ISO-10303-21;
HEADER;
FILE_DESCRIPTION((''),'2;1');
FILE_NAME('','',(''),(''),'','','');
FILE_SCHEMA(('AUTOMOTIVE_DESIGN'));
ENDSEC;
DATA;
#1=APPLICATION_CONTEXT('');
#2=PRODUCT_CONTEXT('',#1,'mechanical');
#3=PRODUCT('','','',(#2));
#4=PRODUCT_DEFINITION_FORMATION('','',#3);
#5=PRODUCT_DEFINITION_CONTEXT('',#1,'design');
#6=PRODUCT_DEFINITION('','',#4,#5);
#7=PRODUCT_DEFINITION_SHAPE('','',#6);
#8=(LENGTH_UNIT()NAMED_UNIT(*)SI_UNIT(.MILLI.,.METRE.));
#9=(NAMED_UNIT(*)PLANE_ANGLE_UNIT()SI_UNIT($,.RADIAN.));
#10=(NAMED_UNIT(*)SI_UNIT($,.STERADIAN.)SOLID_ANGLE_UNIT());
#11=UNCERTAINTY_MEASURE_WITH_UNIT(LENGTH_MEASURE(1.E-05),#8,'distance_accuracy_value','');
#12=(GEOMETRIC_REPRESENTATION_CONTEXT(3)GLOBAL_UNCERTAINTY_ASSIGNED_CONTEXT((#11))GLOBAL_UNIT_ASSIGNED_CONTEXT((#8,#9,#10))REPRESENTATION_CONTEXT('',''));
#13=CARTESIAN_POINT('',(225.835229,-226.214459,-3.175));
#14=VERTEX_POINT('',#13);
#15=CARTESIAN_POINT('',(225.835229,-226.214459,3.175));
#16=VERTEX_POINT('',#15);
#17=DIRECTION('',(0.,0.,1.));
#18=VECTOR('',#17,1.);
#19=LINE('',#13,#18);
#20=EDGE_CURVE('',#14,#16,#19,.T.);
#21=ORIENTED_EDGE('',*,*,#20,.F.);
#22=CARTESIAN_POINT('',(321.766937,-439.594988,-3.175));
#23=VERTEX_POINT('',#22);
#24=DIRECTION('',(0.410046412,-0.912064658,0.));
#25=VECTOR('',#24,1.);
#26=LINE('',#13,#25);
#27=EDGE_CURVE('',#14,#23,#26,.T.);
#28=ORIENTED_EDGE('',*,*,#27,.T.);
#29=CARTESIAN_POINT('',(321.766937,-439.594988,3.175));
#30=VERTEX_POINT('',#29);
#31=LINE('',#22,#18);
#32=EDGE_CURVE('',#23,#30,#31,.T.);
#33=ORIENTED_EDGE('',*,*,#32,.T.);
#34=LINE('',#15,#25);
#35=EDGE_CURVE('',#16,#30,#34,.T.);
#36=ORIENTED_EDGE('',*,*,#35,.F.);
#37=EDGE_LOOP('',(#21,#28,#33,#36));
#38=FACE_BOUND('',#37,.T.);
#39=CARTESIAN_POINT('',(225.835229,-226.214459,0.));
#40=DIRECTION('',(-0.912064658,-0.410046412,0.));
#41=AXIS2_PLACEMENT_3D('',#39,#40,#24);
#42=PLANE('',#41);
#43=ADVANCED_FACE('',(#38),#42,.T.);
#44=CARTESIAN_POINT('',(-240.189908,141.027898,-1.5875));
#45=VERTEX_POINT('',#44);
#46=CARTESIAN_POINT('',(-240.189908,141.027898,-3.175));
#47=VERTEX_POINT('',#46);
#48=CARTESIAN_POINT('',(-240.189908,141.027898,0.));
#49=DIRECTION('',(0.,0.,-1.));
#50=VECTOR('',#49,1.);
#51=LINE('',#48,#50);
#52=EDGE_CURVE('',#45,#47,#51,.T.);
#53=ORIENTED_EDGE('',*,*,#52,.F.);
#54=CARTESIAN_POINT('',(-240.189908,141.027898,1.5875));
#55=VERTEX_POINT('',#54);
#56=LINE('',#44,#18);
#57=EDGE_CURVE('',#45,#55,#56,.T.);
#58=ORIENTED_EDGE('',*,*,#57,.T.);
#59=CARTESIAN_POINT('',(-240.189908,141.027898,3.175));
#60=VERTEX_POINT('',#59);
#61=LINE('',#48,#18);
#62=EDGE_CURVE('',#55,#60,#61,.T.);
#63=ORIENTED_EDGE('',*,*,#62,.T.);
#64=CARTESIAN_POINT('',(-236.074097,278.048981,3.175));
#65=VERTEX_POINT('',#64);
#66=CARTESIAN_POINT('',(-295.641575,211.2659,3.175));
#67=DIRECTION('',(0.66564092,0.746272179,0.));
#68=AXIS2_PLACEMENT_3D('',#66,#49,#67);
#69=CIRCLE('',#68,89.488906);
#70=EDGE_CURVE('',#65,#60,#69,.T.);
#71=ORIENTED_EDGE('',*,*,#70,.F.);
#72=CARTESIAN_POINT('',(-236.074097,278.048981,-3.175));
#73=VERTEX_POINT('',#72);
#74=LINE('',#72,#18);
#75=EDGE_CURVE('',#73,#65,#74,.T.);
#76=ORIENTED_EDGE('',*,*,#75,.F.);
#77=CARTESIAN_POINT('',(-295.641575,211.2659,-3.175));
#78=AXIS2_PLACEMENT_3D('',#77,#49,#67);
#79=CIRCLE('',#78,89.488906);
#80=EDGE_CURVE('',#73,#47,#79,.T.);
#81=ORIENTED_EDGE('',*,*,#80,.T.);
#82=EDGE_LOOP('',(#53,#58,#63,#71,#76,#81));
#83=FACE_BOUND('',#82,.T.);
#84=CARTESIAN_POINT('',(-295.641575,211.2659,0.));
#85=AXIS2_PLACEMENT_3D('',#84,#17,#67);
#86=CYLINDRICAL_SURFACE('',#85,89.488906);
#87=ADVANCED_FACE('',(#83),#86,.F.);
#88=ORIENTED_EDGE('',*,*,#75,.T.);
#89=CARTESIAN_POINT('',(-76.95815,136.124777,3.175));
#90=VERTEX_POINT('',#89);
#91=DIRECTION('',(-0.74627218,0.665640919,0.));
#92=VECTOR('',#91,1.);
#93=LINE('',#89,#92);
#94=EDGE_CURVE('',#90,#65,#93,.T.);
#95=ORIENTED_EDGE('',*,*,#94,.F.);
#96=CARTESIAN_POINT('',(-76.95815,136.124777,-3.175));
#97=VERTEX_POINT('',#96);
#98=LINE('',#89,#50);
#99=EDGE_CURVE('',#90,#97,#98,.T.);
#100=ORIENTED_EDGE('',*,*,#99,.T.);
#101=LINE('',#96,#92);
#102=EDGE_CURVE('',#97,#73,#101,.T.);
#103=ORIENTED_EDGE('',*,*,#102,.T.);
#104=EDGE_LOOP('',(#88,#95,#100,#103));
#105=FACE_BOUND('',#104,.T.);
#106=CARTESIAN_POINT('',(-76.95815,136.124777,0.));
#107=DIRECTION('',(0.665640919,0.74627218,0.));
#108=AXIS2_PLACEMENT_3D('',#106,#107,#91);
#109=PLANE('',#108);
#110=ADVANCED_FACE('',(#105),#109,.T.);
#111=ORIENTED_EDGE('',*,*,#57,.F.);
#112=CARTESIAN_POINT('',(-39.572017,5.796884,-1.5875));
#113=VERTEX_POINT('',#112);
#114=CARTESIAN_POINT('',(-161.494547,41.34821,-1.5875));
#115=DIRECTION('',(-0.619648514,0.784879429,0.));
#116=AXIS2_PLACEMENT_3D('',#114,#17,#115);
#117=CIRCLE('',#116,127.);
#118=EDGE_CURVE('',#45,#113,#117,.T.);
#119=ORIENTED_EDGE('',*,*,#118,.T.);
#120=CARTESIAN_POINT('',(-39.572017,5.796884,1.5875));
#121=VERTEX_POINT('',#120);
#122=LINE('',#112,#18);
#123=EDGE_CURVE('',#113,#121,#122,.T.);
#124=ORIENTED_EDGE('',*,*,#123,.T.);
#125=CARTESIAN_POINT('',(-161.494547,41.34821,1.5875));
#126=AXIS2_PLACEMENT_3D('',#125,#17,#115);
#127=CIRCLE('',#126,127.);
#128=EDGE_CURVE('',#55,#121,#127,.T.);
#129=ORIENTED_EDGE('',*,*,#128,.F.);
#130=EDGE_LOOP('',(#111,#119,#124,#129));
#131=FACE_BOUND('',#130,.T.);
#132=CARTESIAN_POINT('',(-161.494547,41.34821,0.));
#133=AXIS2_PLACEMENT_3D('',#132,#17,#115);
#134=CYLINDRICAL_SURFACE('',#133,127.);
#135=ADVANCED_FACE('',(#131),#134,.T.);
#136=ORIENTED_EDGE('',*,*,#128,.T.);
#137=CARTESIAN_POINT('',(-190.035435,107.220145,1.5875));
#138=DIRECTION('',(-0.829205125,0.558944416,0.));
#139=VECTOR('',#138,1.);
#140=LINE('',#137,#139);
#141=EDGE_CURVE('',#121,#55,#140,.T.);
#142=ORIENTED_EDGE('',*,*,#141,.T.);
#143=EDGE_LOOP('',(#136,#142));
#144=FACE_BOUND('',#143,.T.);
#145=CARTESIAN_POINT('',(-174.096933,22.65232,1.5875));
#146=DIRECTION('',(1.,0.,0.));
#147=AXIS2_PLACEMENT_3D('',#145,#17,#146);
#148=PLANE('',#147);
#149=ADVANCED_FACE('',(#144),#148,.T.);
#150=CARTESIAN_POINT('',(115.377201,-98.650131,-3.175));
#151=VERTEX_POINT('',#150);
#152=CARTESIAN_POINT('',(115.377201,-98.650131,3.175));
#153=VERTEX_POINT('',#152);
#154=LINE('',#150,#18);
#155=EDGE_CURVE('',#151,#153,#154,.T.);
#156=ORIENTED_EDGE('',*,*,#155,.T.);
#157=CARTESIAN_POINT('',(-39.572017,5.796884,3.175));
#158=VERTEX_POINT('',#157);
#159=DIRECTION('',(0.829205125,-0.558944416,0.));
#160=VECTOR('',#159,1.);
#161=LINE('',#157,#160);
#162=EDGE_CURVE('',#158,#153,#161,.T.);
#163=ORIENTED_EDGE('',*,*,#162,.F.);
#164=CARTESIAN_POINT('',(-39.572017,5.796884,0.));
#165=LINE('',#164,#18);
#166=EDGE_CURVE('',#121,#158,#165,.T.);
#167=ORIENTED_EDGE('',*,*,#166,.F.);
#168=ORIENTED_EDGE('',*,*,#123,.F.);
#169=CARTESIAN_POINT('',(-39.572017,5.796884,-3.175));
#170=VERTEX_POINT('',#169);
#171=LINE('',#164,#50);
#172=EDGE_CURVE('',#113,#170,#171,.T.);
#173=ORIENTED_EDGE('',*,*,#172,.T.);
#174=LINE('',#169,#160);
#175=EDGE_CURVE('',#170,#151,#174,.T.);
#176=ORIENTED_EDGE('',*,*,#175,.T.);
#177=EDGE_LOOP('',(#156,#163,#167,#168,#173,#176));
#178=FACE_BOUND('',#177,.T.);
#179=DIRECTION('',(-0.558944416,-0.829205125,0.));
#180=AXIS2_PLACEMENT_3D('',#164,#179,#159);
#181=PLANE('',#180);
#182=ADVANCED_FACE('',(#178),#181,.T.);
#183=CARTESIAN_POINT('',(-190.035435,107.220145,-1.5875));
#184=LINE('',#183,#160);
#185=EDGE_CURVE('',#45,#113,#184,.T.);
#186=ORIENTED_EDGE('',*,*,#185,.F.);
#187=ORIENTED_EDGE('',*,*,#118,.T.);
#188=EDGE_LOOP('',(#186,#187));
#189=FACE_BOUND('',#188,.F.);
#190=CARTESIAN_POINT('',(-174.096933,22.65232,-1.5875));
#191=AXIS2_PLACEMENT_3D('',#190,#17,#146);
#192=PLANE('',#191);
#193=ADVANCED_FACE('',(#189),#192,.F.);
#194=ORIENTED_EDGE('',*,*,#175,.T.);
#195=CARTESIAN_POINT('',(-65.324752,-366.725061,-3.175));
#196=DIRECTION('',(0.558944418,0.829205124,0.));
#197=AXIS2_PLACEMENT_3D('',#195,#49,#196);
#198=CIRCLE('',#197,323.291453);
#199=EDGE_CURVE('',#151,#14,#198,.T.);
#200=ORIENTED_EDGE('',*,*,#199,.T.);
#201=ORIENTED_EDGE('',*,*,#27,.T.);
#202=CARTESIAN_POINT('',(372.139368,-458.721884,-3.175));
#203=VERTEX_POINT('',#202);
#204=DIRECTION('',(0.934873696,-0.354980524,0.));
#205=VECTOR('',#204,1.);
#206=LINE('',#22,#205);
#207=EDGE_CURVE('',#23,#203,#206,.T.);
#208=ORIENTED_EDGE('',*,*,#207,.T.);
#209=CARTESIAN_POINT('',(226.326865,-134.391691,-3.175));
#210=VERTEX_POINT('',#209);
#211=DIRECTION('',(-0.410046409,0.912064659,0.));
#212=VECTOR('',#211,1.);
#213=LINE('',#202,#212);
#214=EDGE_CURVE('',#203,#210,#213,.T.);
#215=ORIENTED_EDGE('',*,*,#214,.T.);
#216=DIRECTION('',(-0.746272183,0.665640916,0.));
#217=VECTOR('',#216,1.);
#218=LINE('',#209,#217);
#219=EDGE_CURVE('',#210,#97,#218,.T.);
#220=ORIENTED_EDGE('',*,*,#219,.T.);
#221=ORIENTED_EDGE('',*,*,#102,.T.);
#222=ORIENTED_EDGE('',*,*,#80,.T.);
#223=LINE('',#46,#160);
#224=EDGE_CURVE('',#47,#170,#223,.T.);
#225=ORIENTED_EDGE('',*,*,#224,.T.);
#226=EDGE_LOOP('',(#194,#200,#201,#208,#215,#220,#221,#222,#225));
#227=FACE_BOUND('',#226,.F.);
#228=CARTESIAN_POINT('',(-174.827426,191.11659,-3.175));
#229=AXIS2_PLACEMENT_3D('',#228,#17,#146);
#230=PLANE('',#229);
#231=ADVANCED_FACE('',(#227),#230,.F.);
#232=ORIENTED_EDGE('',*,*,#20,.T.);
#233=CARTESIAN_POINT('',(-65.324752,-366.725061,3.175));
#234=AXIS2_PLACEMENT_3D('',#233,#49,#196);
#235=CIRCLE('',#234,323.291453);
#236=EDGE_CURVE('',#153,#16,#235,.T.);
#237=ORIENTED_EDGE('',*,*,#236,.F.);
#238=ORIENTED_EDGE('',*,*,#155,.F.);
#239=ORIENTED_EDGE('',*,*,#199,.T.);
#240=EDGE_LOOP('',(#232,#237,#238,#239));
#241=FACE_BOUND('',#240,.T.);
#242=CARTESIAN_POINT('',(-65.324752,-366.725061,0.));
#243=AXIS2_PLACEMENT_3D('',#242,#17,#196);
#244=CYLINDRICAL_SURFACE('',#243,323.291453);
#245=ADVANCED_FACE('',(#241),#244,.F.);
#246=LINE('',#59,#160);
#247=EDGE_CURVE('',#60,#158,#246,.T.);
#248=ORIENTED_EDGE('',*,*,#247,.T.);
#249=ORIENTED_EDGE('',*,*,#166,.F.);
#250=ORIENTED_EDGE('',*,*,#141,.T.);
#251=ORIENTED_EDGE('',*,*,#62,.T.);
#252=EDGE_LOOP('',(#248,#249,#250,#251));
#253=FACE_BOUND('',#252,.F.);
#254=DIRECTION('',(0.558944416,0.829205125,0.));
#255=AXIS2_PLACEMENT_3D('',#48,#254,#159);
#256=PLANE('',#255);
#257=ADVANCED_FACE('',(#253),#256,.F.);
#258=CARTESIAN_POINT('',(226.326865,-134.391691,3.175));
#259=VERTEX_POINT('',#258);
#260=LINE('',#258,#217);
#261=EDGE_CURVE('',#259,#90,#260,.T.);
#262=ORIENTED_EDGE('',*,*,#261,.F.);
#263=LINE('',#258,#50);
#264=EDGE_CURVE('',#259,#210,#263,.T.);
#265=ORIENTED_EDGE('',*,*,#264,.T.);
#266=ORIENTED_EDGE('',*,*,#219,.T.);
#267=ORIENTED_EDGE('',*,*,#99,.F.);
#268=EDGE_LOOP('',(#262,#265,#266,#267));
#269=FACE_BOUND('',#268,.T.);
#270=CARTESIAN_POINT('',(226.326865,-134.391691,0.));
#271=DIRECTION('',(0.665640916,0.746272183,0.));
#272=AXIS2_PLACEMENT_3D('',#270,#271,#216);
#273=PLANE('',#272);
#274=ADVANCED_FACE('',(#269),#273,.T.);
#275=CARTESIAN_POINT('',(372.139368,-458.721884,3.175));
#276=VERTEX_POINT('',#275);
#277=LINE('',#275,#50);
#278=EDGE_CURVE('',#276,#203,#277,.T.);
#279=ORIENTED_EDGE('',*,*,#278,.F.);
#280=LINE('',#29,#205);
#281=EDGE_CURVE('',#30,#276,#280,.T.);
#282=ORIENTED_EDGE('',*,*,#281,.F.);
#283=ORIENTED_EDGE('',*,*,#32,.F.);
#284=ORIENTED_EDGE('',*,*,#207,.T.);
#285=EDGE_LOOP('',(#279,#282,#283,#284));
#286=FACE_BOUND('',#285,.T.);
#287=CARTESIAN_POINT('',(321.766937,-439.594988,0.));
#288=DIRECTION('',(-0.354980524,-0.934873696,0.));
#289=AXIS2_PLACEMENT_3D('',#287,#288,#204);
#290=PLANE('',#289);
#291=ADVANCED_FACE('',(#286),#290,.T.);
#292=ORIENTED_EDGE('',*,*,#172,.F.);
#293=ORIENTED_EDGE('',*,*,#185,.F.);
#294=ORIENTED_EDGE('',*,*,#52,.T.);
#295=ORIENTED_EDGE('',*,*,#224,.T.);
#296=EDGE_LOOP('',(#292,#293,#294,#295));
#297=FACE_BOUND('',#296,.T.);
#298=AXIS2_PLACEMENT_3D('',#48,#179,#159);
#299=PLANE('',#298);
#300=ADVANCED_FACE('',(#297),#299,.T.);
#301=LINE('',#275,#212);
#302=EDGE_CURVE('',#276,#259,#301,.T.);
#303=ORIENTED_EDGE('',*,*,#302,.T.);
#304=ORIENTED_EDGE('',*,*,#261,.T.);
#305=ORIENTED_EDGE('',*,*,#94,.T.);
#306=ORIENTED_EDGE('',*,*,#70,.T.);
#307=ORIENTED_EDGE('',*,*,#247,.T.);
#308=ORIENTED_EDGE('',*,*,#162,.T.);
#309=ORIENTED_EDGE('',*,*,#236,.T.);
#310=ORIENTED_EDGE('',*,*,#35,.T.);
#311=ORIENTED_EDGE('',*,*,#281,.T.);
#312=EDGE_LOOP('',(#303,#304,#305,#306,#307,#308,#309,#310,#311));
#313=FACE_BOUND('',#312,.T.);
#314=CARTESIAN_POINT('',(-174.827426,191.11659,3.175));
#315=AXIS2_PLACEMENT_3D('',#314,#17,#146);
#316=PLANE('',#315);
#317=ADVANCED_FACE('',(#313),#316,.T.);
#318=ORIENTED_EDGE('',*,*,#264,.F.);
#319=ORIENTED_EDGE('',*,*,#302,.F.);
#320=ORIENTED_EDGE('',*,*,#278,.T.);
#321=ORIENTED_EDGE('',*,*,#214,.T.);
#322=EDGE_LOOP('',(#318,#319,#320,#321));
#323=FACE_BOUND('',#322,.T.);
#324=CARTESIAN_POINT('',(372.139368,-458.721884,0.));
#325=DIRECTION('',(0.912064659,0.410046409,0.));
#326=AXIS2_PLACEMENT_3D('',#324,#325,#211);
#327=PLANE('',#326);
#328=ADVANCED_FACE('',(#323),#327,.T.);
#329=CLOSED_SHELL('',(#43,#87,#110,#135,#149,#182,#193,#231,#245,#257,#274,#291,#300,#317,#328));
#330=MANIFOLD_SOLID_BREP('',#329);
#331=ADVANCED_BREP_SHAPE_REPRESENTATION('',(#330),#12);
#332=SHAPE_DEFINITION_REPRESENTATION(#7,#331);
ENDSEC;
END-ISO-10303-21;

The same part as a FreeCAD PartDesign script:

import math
import FreeCAD as App
import Part
import Sketcher
from FreeCAD import Vector
Q = App.Units.Quantity

doc = App.newDocument("Part")
params = doc.addObject("Spreadsheet::Sheet", "Params")
for row, (alias, value) in enumerate([
    ("sketch1_radius", "5 in"),
    ("pad1_length", "0.0625 in"),
    ("pad1_length2", "0.0625 in"),
    ("sketch2_length", "14 in"),
    ("sketch2_length2", "16 in"),
    ("pad2_length", "0.125 in"),
    ("pad2_length2", "0.125 in"),
], start=1):
    params.set(f"A{row}", alias)
    params.set(f"B{row}", "=" + value)
    params.setAlias(f"B{row}", alias)

body = doc.addObject("PartDesign::Body", "Body")

sketch1 = body.newObject("Sketcher::SketchObject", "Sketch")
sketch1.AttachmentSupport = (doc.getObject("XY_Plane"), [""])
sketch1.MapMode = "FlatFace"
sketch1.addGeometry([
    Part.ArcOfCircle(Part.Circle(Vector(-161.494547, 41.34821, 0), Vector(0, 0, 1), 127), math.radians(128.290472), math.radians(343.743871)),
    Part.ArcOfCircle(Part.Circle(Vector(-161.494519, 41.348205, 0), Vector(0, 0, 1), 126.999972), math.radians(-16.25613), math.radians(0.000002)),
    Part.ArcOfCircle(Part.Circle(Vector(-161.494542, 41.348213, 0), Vector(0, 0, 1), 126.999995), math.radians(-0.000001), math.radians(48.268487)),
    Part.ArcOfCircle(Part.Circle(Vector(-161.494547, 41.34821, 0), Vector(0, 0, 1), 127), math.radians(48.268486), math.radians(128.290472)),
], False)
sketch1.addConstraint([
    Sketcher.Constraint("Coincident", 0, 2, 1, 1),
    Sketcher.Constraint("Coincident", 1, 2, 2, 1),
    Sketcher.Constraint("Coincident", 2, 2, 3, 1),
    Sketcher.Constraint("Coincident", 3, 2, 0, 1),
    Sketcher.Constraint("Coincident", 2, 3, 0, 3),
    Sketcher.Constraint("Coincident", 3, 3, 0, 3),
    Sketcher.Constraint("Radius", 0, Q("5 in")),
    Sketcher.Constraint("Radius", 1, 126.999972),
    Sketcher.Constraint("DistanceY", -1, 1, 3, 2, 141.027898),
    Sketcher.Constraint("DistanceX", 1, 3, 0, 2, 121.922502),
    Sketcher.Constraint("DistanceY", -1, 1, 0, 3, 41.34821),
    Sketcher.Constraint("DistanceX", 1, 3, -1, 1, 161.494519),
    Sketcher.Constraint("DistanceY", -1, 1, 1, 2, 41.34821),
    Sketcher.Constraint("DistanceX", 2, 2, -1, 1, 76.95815),
])
sketch1.setExpression("Constraints[6]", "Params.sketch1_radius")
pad1 = body.newObject("PartDesign::Pad", "Pad")
pad1.Profile = sketch1
pad1.Type = "TwoLengths"
pad1.setExpression("Length", "Params.pad1_length")
pad1.setExpression("Length2", "Params.pad1_length2")

sketch2 = body.newObject("Sketcher::SketchObject", "Sketch001")
sketch2.AttachmentSupport = (doc.getObject("XY_Plane"), [""])
sketch2.MapMode = "FlatFace"
sketch2.addGeometry([
    Part.LineSegment(Vector(-77, 136, 0), Vector(-236, 278, 0)),
    Part.ArcOfCircle(Part.Circle(Vector(-296, 211, 0), Vector(0, 0, 1), 89), math.radians(-52), math.radians(48)),
    Part.LineSegment(Vector(-240, 141, 0), Vector(-40, 6, 0)),
    Part.LineSegment(Vector(-40, 6, 0), Vector(115, -99, 0)),
    Part.ArcOfCircle(Part.Circle(Vector(-65, -367, 0), Vector(0, 0, 1), 323), math.radians(26), math.radians(56)),
    Part.LineSegment(Vector(226, -226, 0), Vector(322, -440, 0)),
    Part.LineSegment(Vector(322, -440, 0), Vector(372, -459, 0)),
    Part.LineSegment(Vector(372, -459, 0), Vector(226, -134, 0)),
    Part.LineSegment(Vector(226, -134, 0), Vector(-77, 136, 0)),
], False)
sketch2.addConstraint([
    Sketcher.Constraint("Tangent", 0, 2, 1, 2),
    Sketcher.Constraint("Coincident", 1, 1, 2, 1),
    Sketcher.Constraint("Coincident", 2, 2, 3, 1),
    Sketcher.Constraint("Tangent", 3, 2, 4, 2),
    Sketcher.Constraint("Coincident", 4, 1, 5, 1),
    Sketcher.Constraint("Coincident", 5, 2, 6, 1),
    Sketcher.Constraint("Coincident", 6, 2, 7, 1),
    Sketcher.Constraint("Coincident", 7, 2, 8, 1),
    Sketcher.Constraint("Coincident", 8, 2, 0, 1),
    Sketcher.Constraint("Parallel", 2, 3),
    Sketcher.Constraint("Parallel", 5, 7),
    Sketcher.Constraint("Parallel", 0, 8),
    Sketcher.Constraint("Distance", 7, Q("14 in")),
    Sketcher.Constraint("Distance", 8, Q("16 in")),
    Sketcher.Constraint("Radius", 1, 89.488906),
    Sketcher.Constraint("Radius", 4, 323.291453),
    Sketcher.Constraint("DistanceY", -1, 1, 1, 3, 211.2659),
    Sketcher.Constraint("DistanceX", -1, 1, 3, 2, 115.377201),
    Sketcher.Constraint("DistanceX", 0, 2, 3, 2, 351.451298),
    Sketcher.Constraint("DistanceY", 4, 3, 4, 1, 140.510602),
    Sketcher.Constraint("Distance", 3, 186.864762),
    Sketcher.Constraint("Distance", 5, 233.953292),
    Sketcher.Constraint("DistanceX", 4, 3, -1, 1, 65.324752),
    Sketcher.Constraint("DistanceY", 4, 3, -1, 1, 366.725061),
    Sketcher.Constraint("DistanceY", -1, 1, 0, 2, 278.048981),
    Sketcher.Constraint("DistanceY", 5, 2, -1, 1, 439.594988),
    Sketcher.Constraint("DistanceX", -1, 1, 6, 2, 372.139368),
])
sketch2.setExpression("Constraints[12]", "Params.sketch2_length")
sketch2.setExpression("Constraints[13]", "Params.sketch2_length2")
pad2 = body.newObject("PartDesign::Pad", "Pad001")
pad2.Profile = sketch2
pad2.Type = "TwoLengths"
pad2.setExpression("Length", "Params.pad2_length")
pad2.setExpression("Length2", "Params.pad2_length2")

doc.recompute()
